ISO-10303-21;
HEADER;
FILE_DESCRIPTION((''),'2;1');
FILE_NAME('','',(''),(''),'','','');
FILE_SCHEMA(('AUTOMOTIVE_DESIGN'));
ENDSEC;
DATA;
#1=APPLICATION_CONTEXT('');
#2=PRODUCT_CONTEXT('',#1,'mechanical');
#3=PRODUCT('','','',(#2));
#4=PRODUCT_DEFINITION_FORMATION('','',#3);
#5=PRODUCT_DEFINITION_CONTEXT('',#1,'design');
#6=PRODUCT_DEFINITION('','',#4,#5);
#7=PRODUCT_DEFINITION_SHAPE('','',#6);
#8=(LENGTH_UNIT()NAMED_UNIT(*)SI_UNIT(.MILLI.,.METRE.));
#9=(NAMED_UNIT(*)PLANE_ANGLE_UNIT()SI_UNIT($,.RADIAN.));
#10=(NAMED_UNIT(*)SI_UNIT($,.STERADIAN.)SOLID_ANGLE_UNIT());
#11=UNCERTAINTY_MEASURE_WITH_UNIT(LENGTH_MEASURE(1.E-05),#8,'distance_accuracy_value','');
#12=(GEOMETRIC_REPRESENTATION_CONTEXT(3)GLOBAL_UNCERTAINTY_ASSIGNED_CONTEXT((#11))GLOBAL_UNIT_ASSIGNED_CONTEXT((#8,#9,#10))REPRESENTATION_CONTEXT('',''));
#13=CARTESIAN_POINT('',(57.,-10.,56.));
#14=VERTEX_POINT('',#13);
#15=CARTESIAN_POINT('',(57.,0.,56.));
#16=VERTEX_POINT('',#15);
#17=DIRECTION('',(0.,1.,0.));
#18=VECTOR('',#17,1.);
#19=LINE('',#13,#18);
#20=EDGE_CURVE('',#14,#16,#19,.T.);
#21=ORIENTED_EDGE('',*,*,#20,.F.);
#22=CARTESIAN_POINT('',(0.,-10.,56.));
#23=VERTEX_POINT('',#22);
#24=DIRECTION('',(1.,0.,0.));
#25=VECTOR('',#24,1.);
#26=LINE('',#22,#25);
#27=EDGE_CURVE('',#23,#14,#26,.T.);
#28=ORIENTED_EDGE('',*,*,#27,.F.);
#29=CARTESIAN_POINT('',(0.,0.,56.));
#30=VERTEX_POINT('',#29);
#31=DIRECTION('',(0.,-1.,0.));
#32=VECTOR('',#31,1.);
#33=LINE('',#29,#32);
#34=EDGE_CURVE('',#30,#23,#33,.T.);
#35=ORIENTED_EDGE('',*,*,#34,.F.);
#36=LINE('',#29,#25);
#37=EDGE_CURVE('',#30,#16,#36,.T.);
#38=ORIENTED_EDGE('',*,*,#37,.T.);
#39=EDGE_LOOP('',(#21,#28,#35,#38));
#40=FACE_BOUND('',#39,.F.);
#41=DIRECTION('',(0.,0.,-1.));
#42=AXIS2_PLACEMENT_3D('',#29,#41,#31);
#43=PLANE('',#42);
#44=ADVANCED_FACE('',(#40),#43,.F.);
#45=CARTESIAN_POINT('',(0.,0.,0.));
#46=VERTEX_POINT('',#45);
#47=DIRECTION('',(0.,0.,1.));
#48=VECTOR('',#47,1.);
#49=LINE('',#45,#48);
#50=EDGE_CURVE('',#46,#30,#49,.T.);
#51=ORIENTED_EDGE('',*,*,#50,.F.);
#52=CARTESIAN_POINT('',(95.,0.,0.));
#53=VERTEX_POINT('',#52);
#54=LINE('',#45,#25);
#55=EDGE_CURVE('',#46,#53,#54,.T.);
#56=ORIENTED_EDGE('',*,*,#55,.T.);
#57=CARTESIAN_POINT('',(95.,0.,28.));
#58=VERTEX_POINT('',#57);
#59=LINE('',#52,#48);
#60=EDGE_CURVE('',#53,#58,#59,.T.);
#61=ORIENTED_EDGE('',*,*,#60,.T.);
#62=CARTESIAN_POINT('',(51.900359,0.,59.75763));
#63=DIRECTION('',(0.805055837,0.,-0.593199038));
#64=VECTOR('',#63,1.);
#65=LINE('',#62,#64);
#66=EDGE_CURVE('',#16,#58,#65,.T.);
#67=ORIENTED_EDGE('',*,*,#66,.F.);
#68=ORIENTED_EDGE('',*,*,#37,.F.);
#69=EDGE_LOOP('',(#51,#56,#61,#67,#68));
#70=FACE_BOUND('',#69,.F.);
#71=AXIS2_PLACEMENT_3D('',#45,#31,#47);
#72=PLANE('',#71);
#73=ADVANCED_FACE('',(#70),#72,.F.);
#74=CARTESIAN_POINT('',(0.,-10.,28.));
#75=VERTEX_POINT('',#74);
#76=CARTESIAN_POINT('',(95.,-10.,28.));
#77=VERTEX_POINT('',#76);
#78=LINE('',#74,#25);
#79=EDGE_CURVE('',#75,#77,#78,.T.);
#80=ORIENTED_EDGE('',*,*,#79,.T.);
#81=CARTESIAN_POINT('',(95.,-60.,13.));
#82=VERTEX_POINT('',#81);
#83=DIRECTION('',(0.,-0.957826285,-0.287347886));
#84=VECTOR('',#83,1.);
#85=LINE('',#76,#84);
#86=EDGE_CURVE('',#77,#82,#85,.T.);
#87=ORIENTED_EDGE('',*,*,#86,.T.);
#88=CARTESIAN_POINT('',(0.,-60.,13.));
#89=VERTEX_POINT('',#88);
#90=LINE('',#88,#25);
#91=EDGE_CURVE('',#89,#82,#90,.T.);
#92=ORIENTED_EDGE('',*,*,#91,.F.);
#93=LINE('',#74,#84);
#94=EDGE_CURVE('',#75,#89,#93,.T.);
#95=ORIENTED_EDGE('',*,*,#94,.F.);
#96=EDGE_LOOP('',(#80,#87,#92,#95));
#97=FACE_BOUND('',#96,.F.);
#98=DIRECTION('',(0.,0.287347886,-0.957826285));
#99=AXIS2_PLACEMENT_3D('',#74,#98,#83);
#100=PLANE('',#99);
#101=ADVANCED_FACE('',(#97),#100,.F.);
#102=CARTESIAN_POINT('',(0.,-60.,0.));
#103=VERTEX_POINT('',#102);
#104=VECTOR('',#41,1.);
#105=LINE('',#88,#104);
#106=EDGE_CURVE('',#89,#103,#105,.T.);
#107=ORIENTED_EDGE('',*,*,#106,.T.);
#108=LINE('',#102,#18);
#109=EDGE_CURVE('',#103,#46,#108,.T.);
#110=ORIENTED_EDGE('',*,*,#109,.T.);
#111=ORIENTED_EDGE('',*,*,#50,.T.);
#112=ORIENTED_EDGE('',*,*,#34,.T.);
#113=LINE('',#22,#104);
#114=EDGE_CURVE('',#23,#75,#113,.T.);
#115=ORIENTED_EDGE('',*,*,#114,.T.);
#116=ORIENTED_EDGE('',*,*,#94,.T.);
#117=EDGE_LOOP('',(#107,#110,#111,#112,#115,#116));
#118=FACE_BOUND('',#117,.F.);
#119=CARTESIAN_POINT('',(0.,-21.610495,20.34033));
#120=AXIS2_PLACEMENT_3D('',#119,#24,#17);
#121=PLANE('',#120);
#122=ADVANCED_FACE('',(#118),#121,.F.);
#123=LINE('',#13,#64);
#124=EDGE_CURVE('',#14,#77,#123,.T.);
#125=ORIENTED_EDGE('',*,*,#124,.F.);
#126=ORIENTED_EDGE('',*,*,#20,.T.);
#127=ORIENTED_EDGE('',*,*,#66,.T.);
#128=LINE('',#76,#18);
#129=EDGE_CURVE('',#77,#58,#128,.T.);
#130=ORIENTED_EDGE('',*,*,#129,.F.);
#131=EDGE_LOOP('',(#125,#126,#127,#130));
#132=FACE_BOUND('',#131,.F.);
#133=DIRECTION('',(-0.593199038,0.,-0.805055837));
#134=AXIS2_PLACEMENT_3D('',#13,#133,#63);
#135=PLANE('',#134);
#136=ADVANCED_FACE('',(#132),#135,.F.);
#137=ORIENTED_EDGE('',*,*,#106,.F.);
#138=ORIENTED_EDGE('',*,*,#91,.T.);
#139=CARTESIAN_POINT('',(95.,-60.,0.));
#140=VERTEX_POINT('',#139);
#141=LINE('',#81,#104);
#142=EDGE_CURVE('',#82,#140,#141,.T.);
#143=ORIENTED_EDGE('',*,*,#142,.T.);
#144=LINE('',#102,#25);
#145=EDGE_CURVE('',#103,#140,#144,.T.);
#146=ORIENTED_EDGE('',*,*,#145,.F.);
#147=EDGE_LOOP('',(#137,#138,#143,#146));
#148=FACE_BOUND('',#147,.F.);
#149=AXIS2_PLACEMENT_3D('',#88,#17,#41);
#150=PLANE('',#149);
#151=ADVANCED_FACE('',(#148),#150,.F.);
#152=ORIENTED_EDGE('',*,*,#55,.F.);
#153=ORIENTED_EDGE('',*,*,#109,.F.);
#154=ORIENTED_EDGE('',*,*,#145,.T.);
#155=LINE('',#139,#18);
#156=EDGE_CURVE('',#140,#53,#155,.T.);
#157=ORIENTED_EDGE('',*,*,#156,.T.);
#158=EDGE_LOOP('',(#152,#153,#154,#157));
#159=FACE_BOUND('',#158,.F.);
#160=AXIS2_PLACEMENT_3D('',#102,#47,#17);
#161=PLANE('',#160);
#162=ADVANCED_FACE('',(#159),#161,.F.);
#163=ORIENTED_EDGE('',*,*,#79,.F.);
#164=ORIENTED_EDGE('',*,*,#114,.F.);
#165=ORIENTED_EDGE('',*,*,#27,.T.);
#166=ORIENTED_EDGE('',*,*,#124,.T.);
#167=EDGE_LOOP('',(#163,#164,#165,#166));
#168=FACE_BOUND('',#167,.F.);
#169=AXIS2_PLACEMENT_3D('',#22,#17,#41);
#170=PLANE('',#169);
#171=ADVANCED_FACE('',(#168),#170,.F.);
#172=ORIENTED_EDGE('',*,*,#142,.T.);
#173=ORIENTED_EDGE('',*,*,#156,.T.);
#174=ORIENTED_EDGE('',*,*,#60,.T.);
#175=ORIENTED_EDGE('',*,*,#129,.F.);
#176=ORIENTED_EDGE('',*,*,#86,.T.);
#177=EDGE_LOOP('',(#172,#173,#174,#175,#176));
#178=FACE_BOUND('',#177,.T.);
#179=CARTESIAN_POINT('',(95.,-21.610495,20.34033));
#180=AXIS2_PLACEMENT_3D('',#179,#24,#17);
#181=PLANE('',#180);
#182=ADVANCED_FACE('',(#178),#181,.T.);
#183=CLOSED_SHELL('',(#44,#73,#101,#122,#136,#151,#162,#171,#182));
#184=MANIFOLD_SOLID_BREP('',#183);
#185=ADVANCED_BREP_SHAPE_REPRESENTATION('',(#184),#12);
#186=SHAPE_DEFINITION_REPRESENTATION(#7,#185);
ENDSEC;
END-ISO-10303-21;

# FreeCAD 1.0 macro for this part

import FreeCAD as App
import Part
import Sketcher

V = App.Vector


def add_polygon(sketch, points):
    """Adds a closed chain of lines whose ends are joined by coincident constraints."""
    first, n = sketch.GeometryCount, len(points)
    for a, b in zip(points, points[1:] + points[:1]):
        sketch.addGeometry(Part.LineSegment(App.Vector(*a, 0), App.Vector(*b, 0)), False)
    for i in range(n):
        sketch.addConstraint(Sketcher.Constraint("Coincident", first + i, 2, first + (i + 1) % n, 1))

doc = App.newDocument("Part")
params = doc.addObject("Spreadsheet::Sheet", "Params")
for row, (alias, value) in enumerate([
    ("sketch1_width", "60 mm"),
    ("sketch1_width2", "10 mm"),
    ("sketch1_height", "56 mm"),
    ("sketch1_height2", "28 mm"),
    ("sketch1_height3", "13 mm"),
    ("pad1_length", "95 mm"),
    ("sketch2_width", "38 mm"),
    ("sketch2_height", "28 mm"),
    ("pocket1_length", "25 mm"),
], start=1):
    params.set(f"A{row}", alias)
    params.set(f"B{row}", "=" + value)
    params.setAlias(f"B{row}", alias)

body = doc.addObject("PartDesign::Body", "Body")

# Sketch on YZ plane
sketch1 = doc.addObject("Sketcher::SketchObject", "Sketch")
body.addObject(sketch1)
sketch1.AttachmentSupport = (doc.YZ_Plane, [""])
sketch1.MapMode = "FlatFace"
add_polygon(sketch1, [(-60, 0), (0, 0), (0, 56), (-10, 56), (-10, 28), (-60, 13)])  # lines 0-5
sketch1.addConstraint([
    Sketcher.Constraint("Horizontal", 0),
    Sketcher.Constraint("Vertical", 1),
    Sketcher.Constraint("Horizontal", 2),
    Sketcher.Constraint("Vertical", 3),
    Sketcher.Constraint("Vertical", 5),
    Sketcher.Constraint("Coincident", 0, 2, -1, 1),
    Sketcher.Constraint("DistanceX", 0, 1, 0, 2, 60.0),
    Sketcher.Constraint("DistanceX", 2, 2, 2, 1, 10.0),
    Sketcher.Constraint("DistanceY", 1, 1, 1, 2, 56.0),
    Sketcher.Constraint("DistanceY", 3, 2, 3, 1, 28.0),
    Sketcher.Constraint("DistanceY", 5, 2, 5, 1, 13.0),
])
sketch1.setExpression("Constraints[12]", "Params.sketch1_width")
sketch1.setExpression("Constraints[13]", "Params.sketch1_width2")
sketch1.setExpression("Constraints[14]", "Params.sketch1_height")
sketch1.setExpression("Constraints[15]", "Params.sketch1_height2")
sketch1.setExpression("Constraints[16]", "Params.sketch1_height3")
pad1 = doc.addObject("PartDesign::Pad", "Pad")
body.addObject(pad1)
pad1.Profile = sketch1
pad1.setExpression("Length", "Params.pad1_length")

# Sketch on XZ plane
sketch2 = doc.addObject("Sketcher::SketchObject", "Sketch001")
body.addObject(sketch2)
sketch2.AttachmentSupport = (doc.XZ_Plane, [""])
sketch2.MapMode = "FlatFace"
sketch2.AttachmentOffset = App.Placement(V(0, 0, 10), App.Rotation())
add_polygon(sketch2, [(95, 56), (57, 56), (95, 28)])  # lines 0-2
sketch2.addConstraint([
    Sketcher.Constraint("Horizontal", 0),
    Sketcher.Constraint("Vertical", 2),
    Sketcher.Constraint("DistanceX", 0, 2, 0, 1, 38.0),
    Sketcher.Constraint("DistanceY", 2, 1, 2, 2, 28.0),
    Sketcher.Constraint("DistanceX", -1, 1, 0, 2, 57.0),
    Sketcher.Constraint("DistanceY", -1, 1, 0, 2, 56.0),
])
sketch2.setExpression("Constraints[5]", "Params.sketch2_width")
sketch2.setExpression("Constraints[6]", "Params.sketch2_height")
pocket1 = doc.addObject("PartDesign::Pocket", "Pocket")
body.addObject(pocket1)
pocket1.Profile = sketch2
pocket1.setExpression("Length", "Params.pocket1_length")

doc.recompute()
